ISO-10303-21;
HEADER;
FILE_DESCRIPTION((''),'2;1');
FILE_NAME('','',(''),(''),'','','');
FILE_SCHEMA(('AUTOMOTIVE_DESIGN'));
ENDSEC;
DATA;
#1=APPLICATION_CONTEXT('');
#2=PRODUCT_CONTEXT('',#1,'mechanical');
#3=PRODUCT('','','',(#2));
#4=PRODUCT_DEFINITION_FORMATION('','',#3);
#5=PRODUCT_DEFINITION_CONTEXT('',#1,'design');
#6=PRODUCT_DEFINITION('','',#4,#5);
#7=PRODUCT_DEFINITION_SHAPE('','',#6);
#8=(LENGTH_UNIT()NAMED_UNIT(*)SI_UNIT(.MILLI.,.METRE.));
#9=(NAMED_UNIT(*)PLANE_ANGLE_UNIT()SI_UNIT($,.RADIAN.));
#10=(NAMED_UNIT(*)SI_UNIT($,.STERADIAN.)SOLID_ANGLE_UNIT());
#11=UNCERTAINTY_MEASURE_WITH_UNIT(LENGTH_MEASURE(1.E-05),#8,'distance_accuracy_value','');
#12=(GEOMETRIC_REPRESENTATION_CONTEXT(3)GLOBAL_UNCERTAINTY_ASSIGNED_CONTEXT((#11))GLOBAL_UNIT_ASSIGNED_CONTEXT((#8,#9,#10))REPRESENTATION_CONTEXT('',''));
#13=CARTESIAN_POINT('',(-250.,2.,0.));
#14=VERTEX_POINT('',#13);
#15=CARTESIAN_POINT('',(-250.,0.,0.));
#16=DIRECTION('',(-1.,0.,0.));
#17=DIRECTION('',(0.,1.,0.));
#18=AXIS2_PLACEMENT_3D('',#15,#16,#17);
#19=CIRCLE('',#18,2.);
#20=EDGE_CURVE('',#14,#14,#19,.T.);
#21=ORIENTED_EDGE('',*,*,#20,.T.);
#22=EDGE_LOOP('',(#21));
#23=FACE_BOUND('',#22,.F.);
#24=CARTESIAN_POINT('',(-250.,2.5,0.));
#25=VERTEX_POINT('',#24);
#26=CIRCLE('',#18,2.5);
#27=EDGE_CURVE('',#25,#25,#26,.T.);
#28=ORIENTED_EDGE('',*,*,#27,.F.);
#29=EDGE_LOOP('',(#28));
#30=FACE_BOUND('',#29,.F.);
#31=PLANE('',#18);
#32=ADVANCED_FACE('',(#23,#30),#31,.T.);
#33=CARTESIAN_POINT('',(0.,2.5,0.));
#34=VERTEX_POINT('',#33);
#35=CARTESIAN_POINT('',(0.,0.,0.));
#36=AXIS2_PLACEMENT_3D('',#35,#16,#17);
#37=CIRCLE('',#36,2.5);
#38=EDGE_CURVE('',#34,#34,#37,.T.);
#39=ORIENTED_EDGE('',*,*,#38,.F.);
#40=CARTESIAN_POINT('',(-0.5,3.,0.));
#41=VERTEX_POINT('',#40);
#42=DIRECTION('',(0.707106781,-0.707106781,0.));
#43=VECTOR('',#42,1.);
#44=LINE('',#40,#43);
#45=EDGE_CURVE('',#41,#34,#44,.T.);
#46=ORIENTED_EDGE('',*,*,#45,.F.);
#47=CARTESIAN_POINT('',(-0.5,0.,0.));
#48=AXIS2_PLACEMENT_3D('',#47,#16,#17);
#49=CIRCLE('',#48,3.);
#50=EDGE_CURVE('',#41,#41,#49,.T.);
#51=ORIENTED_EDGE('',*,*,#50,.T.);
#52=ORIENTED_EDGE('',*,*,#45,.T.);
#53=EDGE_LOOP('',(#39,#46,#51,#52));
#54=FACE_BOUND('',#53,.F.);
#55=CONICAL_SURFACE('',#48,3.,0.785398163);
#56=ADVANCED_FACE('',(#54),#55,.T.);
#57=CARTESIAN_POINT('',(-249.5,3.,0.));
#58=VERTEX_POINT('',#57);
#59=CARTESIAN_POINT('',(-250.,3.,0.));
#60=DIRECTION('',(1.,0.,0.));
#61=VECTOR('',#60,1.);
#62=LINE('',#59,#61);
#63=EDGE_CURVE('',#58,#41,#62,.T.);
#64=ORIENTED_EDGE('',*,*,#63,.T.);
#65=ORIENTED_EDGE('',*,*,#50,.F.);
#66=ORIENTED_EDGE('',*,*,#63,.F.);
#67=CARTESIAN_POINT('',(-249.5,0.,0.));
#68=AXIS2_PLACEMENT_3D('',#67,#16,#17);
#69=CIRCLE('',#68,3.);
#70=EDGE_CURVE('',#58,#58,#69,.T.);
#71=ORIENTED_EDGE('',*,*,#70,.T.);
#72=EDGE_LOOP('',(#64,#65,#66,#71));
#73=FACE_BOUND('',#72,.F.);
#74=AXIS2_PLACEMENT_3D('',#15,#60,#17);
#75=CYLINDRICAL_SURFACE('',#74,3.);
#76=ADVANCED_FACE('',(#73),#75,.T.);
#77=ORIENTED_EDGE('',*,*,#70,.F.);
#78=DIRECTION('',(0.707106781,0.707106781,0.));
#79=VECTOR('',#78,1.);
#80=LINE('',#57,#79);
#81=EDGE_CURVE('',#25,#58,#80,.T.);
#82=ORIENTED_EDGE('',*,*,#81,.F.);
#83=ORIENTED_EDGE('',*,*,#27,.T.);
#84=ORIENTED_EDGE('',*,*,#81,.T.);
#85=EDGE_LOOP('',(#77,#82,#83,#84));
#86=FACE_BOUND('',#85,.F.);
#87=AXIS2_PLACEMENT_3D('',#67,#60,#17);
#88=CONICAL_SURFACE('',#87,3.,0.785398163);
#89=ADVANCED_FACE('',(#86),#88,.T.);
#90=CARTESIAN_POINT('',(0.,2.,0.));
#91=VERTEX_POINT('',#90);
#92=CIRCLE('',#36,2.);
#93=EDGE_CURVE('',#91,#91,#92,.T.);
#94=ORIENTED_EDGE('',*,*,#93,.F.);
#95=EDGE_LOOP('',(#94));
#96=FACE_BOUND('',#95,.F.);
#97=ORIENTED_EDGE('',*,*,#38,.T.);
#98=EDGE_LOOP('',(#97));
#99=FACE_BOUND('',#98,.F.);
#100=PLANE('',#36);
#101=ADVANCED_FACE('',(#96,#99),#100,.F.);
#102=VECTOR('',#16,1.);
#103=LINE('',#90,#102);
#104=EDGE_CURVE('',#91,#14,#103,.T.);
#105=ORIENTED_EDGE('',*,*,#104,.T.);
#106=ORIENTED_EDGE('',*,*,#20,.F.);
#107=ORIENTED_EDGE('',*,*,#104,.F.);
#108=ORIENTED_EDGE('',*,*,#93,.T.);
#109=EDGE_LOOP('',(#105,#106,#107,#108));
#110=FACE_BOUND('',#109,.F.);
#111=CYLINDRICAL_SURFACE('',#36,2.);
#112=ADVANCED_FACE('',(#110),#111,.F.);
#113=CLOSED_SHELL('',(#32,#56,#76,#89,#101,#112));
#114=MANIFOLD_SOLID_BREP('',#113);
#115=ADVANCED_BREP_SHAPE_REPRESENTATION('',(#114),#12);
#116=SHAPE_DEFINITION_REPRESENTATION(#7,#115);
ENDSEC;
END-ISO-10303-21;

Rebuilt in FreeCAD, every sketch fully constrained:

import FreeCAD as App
import Part
import Sketcher
from FreeCAD import Vector


def edges_at(feature, points):
    """Names of the edges that pass closest to the given points."""
    edges = feature.Shape.Edges
    near = lambda p: min(range(len(edges)), key=lambda i: edges[i].distToShape(Part.Vertex(*p))[0])
    return sorted({f"Edge{near(p) + 1}" for p in points})


def add_polygon(sketch, points):
    """Adds a closed chain of lines whose ends are joined by coincident constraints."""
    first, n = sketch.GeometryCount, len(points)
    for a, b in zip(points, points[1:] + points[:1]):
        sketch.addGeometry(Part.LineSegment(App.Vector(*a, 0), App.Vector(*b, 0)), False)
    for i in range(n):
        sketch.addConstraint(Sketcher.Constraint("Coincident", first + i, 2, first + (i + 1) % n, 1))

doc = App.newDocument("Part")
body = doc.addObject("PartDesign::Body", "Body")

# Sketch on XY plane
sketch1 = body.newObject("Sketcher::SketchObject", "Sketch")
sketch1.AttachmentSupport = (doc.getObject("XY_Plane"), [""])
sketch1.MapMode = "FlatFace"
add_polygon(sketch1, [(-250, 2), (0, 2), (0, 3), (-250, 3)])  # lines 0-3
sketch1.addConstraint([
    Sketcher.Constraint("Horizontal", 0),
    Sketcher.Constraint("Vertical", 1),
    Sketcher.Constraint("Horizontal", 2),
    Sketcher.Constraint("Vertical", 3),
    Sketcher.Constraint("PointOnObject", 0, 2, -2),
    Sketcher.Constraint("DistanceX", 0, 1, 0, 2, 250.0),
    Sketcher.Constraint("DistanceY", -1, 1, 0, 2, 2.0),
    Sketcher.Constraint("DistanceY", -1, 1, 1, 2, 3.0),
])
revolution = body.newObject("PartDesign::Revolution", "Revolution")
revolution.Profile = sketch1
revolution.ReferenceAxis = (sketch1, ["H_Axis"])
revolution.Angle = 360
doc.recompute()

chamfer = body.newObject("PartDesign::Chamfer", "Chamfer")
chamfer.Base = (revolution, edges_at(revolution, [(0, -3, 0), (-250, -3, 0)]))
chamfer.Size = 0.5

doc.recompute()
